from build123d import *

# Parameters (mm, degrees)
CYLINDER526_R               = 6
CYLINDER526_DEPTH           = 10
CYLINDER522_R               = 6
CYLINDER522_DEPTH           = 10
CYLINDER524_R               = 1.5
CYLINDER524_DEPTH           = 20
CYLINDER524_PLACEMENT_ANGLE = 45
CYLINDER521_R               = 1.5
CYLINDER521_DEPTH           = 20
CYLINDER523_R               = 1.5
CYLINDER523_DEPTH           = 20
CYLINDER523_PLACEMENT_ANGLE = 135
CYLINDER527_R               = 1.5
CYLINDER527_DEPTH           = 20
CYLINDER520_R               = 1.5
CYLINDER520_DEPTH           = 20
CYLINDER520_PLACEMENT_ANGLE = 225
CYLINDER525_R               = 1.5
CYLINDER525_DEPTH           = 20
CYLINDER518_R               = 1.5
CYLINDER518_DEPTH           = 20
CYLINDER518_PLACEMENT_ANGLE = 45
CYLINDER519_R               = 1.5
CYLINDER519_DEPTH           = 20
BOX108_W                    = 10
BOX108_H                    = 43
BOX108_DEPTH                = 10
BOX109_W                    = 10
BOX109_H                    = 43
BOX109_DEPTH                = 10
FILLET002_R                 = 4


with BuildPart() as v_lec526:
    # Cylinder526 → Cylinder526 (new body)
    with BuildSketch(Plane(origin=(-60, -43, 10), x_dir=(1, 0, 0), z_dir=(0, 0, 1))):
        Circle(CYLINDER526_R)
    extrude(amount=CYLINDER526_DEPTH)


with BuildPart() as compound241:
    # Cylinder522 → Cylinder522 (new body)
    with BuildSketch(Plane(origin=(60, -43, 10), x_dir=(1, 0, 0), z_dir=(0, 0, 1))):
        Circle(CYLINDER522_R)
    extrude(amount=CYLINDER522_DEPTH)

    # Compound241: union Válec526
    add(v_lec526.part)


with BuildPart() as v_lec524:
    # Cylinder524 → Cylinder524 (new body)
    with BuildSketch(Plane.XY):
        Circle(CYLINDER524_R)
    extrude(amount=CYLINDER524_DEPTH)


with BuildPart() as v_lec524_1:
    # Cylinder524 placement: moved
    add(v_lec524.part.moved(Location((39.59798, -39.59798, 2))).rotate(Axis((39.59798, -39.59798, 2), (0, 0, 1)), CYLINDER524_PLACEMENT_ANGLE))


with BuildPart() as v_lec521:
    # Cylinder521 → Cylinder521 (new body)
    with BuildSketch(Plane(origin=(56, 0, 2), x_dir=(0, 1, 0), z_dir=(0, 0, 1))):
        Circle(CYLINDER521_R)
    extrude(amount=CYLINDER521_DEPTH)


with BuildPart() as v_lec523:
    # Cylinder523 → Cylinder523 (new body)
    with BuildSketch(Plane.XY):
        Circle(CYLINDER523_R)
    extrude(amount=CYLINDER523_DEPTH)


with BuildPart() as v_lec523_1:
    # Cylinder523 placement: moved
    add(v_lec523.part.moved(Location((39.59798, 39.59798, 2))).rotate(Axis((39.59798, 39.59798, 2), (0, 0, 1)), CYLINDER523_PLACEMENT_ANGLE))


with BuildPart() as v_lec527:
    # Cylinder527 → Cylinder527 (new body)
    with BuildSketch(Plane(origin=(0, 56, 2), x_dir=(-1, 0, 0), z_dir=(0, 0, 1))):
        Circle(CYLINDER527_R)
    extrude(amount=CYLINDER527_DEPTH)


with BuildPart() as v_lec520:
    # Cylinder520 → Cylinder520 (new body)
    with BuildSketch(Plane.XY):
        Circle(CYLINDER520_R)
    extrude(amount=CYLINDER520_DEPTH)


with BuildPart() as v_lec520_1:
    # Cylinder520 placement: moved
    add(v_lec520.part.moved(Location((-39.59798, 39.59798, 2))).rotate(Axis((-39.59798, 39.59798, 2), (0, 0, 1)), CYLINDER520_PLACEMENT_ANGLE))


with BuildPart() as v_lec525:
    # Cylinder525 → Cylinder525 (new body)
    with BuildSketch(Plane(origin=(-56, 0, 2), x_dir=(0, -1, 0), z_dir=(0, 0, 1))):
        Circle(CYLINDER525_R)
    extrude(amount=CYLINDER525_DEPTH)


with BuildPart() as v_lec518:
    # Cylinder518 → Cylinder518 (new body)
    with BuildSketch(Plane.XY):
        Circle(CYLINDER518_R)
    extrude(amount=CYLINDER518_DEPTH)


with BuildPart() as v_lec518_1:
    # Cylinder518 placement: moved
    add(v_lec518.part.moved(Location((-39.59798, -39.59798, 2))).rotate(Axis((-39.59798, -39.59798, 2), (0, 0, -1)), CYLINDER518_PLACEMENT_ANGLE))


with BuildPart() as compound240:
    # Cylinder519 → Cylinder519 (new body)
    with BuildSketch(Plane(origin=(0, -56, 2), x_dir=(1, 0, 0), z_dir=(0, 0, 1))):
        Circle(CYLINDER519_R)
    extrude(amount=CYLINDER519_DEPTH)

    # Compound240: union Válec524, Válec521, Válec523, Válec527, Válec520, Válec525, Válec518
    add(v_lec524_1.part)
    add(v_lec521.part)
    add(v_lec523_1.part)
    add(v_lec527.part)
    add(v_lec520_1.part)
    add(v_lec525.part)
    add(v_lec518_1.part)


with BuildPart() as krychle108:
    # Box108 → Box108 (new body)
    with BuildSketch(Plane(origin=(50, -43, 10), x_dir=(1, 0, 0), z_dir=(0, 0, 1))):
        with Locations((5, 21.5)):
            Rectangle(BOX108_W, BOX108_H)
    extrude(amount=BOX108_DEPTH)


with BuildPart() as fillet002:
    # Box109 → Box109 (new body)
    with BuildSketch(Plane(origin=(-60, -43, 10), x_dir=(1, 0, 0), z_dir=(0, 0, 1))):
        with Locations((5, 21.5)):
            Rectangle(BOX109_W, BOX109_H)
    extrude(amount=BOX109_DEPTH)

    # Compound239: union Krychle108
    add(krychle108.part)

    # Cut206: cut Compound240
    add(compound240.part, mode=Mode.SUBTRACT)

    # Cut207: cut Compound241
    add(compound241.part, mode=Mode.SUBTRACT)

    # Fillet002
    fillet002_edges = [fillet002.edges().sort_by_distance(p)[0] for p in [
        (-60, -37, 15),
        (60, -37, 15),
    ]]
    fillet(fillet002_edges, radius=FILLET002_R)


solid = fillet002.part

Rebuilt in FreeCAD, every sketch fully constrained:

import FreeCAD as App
import Part
import Sketcher
Q = App.Units.Quantity


def edges_at(feature, points):
    """Names of the edges that pass closest to the given points."""
    edges = feature.Shape.Edges
    near = lambda p: min(range(len(edges)), key=lambda i: edges[i].distToShape(Part.Vertex(*p))[0])
    return sorted({f"Edge{near(p) + 1}" for p in points})


def add_polygon(sketch, points):
    """Adds a closed chain of lines whose ends are joined by coincident constraints."""
    first, n = sketch.GeometryCount, len(points)
    for a, b in zip(points, points[1:] + points[:1]):
        sketch.addGeometry(Part.LineSegment(App.Vector(*a, 0), App.Vector(*b, 0)), False)
    for i in range(n):
        sketch.addConstraint(Sketcher.Constraint("Coincident", first + i, 2, first + (i + 1) % n, 1))

doc = App.newDocument("Part")
body = doc.addObject("PartDesign::Body", "Body")

# Sketch on XY plane
sketch1 = body.newObject("Sketcher::SketchObject", "Sketch")
sketch1.AttachmentSupport = (doc.getObject("XY_Plane"), [""])
sketch1.MapMode = "FlatFace"
sketch1.AttachmentOffset = App.Placement(App.Vector(0, 0, 10), App.Rotation())
sketch1.addGeometry(Part.Circle(App.Vector(-60, -43, 0), App.Vector(0, 0, 1), 6), False)
sketch1.addConstraint(Sketcher.Constraint("Diameter", 0, Q("12 mm")))
sketch1.addConstraint(Sketcher.Constraint("DistanceX", 0, 3, -1, 1, Q("60 mm")))
sketch1.addConstraint(Sketcher.Constraint("DistanceY", 0, 3, -1, 1, Q("43 mm")))
pad1 = body.newObject("PartDesign::Pad", "Pad")
pad1.Profile = sketch1
pad1.Length = 10
body2 = doc.addObject("PartDesign::Body", "Body001")
body2.AllowCompound = True

# Sketch on XY plane
sketch2 = body2.newObject("Sketcher::SketchObject", "Sketch001")
sketch2.AttachmentSupport = (doc.getObject("XY_Plane001"), [""])
sketch2.MapMode = "FlatFace"
sketch2.AttachmentOffset = App.Placement(App.Vector(0, 0, 10), App.Rotation())
sketch2.addGeometry(Part.Circle(App.Vector(60, -43, 0), App.Vector(0, 0, 1), 6), False)
sketch2.addConstraint(Sketcher.Constraint("Diameter", 0, Q("12 mm")))
sketch2.addConstraint(Sketcher.Constraint("DistanceX", -1, 1, 0, 3, Q("60 mm")))
sketch2.addConstraint(Sketcher.Constraint("DistanceY", 0, 3, -1, 1, Q("43 mm")))
pad2 = body2.newObject("PartDesign::Pad", "Pad001")
pad2.Profile = sketch2
pad2.Length = 10
doc.recompute()

boolean = body2.newObject("PartDesign::Boolean", "Boolean")
boolean.Type = "Fuse"
boolean.addObjects([body])
body3 = doc.addObject("PartDesign::Body", "Body002")

# Sketch on XY plane
sketch3 = body3.newObject("Sketcher::SketchObject", "Sketch002")
sketch3.AttachmentSupport = (doc.getObject("XY_Plane002"), [""])
sketch3.MapMode = "FlatFace"
sketch3.addGeometry(Part.Circle(App.Vector(0, 0, 0), App.Vector(0, 0, 1), 1.5), False)
sketch3.addConstraint(Sketcher.Constraint("Coincident", 0, 3, -1, 1))
sketch3.addConstraint(Sketcher.Constraint("Diameter", 0, Q("3 mm")))
pad3 = body3.newObject("PartDesign::Pad", "Pad002")
pad3.Profile = sketch3
pad3.Length = 20
body4 = doc.addObject("PartDesign::Body", "Body003")
doc.recompute()

body3.Placement = App.Placement(App.Vector(39.59798, -39.59798, 2), App.Rotation(App.Vector(0, 0, 1), 45))
boolean2 = body4.newObject("PartDesign::Boolean", "Boolean001")
boolean2.Type = "Fuse"
boolean2.addObjects([body3])
body5 = doc.addObject("PartDesign::Body", "Body004")

# Sketch on XY plane
sketch4 = body5.newObject("Sketcher::SketchObject", "Sketch003")
sketch4.AttachmentSupport = (doc.getObject("XY_Plane004"), [""])
sketch4.MapMode = "FlatFace"
sketch4.AttachmentOffset = App.Placement(App.Vector(0, 0, 2), App.Rotation())
sketch4.addGeometry(Part.Circle(App.Vector(56, 0, 0), App.Vector(0, 0, 1), 1.5), False)
sketch4.addConstraint(Sketcher.Constraint("PointOnObject", 0, 3, -1))
sketch4.addConstraint(Sketcher.Constraint("Diameter", 0, Q("3 mm")))
sketch4.addConstraint(Sketcher.Constraint("DistanceX", -1, 1, 0, 3, Q("56 mm")))
pad4 = body5.newObject("PartDesign::Pad", "Pad003")
pad4.Profile = sketch4
pad4.Length = 20
body6 = doc.addObject("PartDesign::Body", "Body005")

# Sketch on XY plane
sketch5 = body6.newObject("Sketcher::SketchObject", "Sketch004")
sketch5.AttachmentSupport = (doc.getObject("XY_Plane005"), [""])
sketch5.MapMode = "FlatFace"
sketch5.addGeometry(Part.Circle(App.Vector(0, 0, 0), App.Vector(0, 0, 1), 1.5), False)
sketch5.addConstraint(Sketcher.Constraint("Coincident", 0, 3, -1, 1))
sketch5.addConstraint(Sketcher.Constraint("Diameter", 0, Q("3 mm")))
pad5 = body6.newObject("PartDesign::Pad", "Pad004")
pad5.Profile = sketch5
pad5.Length = 20
body7 = doc.addObject("PartDesign::Body", "Body006")
doc.recompute()

body6.Placement = App.Placement(App.Vector(39.59798, 39.59798, 2), App.Rotation(App.Vector(0, 0, 1), 135))
boolean3 = body7.newObject("PartDesign::Boolean", "Boolean002")
boolean3.Type = "Fuse"
boolean3.addObjects([body6])
body8 = doc.addObject("PartDesign::Body", "Body007")

# Sketch on XY plane
sketch6 = body8.newObject("Sketcher::SketchObject", "Sketch005")
sketch6.AttachmentSupport = (doc.getObject("XY_Plane007"), [""])
sketch6.MapMode = "FlatFace"
sketch6.AttachmentOffset = App.Placement(App.Vector(0, 0, 2), App.Rotation())
sketch6.addGeometry(Part.Circle(App.Vector(0, 56, 0), App.Vector(0, 0, 1), 1.5), False)
sketch6.addConstraint(Sketcher.Constraint("PointOnObject", 0, 3, -2))
sketch6.addConstraint(Sketcher.Constraint("Diameter", 0, Q("3 mm")))
sketch6.addConstraint(Sketcher.Constraint("DistanceY", -1, 1, 0, 3, Q("56 mm")))
pad6 = body8.newObject("PartDesign::Pad", "Pad005")
pad6.Profile = sketch6
pad6.Length = 20
body9 = doc.addObject("PartDesign::Body", "Body008")

# Sketch on XY plane
sketch7 = body9.newObject("Sketcher::SketchObject", "Sketch006")
sketch7.AttachmentSupport = (doc.getObject("XY_Plane008"), [""])
sketch7.MapMode = "FlatFace"
sketch7.addGeometry(Part.Circle(App.Vector(0, 0, 0), App.Vector(0, 0, 1), 1.5), False)
sketch7.addConstraint(Sketcher.Constraint("Coincident", 0, 3, -1, 1))
sketch7.addConstraint(Sketcher.Constraint("Diameter", 0, Q("3 mm")))
pad7 = body9.newObject("PartDesign::Pad", "Pad006")
pad7.Profile = sketch7
pad7.Length = 20
body10 = doc.addObject("PartDesign::Body", "Body009")
doc.recompute()

body9.Placement = App.Placement(App.Vector(-39.59798, 39.59798, 2), App.Rotation(App.Vector(0, 0, 1), 225))
boolean4 = body10.newObject("PartDesign::Boolean", "Boolean003")
boolean4.Type = "Fuse"
boolean4.addObjects([body9])
body11 = doc.addObject("PartDesign::Body", "Body010")

# Sketch on XY plane
sketch8 = body11.newObject("Sketcher::SketchObject", "Sketch007")
sketch8.AttachmentSupport = (doc.getObject("XY_Plane010"), [""])
sketch8.MapMode = "FlatFace"
sketch8.AttachmentOffset = App.Placement(App.Vector(0, 0, 2), App.Rotation())
sketch8.addGeometry(Part.Circle(App.Vector(-56, 0, 0), App.Vector(0, 0, 1), 1.5), False)
sketch8.addConstraint(Sketcher.Constraint("PointOnObject", 0, 3, -1))
sketch8.addConstraint(Sketcher.Constraint("Diameter", 0, Q("3 mm")))
sketch8.addConstraint(Sketcher.Constraint("DistanceX", 0, 3, -1, 1, Q("56 mm")))
pad8 = body11.newObject("PartDesign::Pad", "Pad007")
pad8.Profile = sketch8
pad8.Length = 20
body12 = doc.addObject("PartDesign::Body", "Body011")

# Sketch on XY plane
sketch9 = body12.newObject("Sketcher::SketchObject", "Sketch008")
sketch9.AttachmentSupport = (doc.getObject("XY_Plane011"), [""])
sketch9.MapMode = "FlatFace"
sketch9.addGeometry(Part.Circle(App.Vector(0, 0, 0), App.Vector(0, 0, 1), 1.5), False)
sketch9.addConstraint(Sketcher.Constraint("Coincident", 0, 3, -1, 1))
sketch9.addConstraint(Sketcher.Constraint("Diameter", 0, Q("3 mm")))
pad9 = body12.newObject("PartDesign::Pad", "Pad008")
pad9.Profile = sketch9
pad9.Length = 20
body13 = doc.addObject("PartDesign::Body", "Body012")
doc.recompute()

body12.Placement = App.Placement(App.Vector(-39.59798, -39.59798, 2), App.Rotation(App.Vector(0, 0, -1), 45))
boolean5 = body13.newObject("PartDesign::Boolean", "Boolean004")
boolean5.Type = "Fuse"
boolean5.addObjects([body12])
body14 = doc.addObject("PartDesign::Body", "Body013")
body14.AllowCompound = True

# Sketch on XY plane
sketch10 = body14.newObject("Sketcher::SketchObject", "Sketch009")
sketch10.AttachmentSupport = (doc.getObject("XY_Plane013"), [""])
sketch10.MapMode = "FlatFace"
sketch10.AttachmentOffset = App.Placement(App.Vector(0, 0, 2), App.Rotation())
sketch10.addGeometry(Part.Circle(App.Vector(0, -56, 0), App.Vector(0, 0, 1), 1.5), False)
sketch10.addConstraint(Sketcher.Constraint("PointOnObject", 0, 3, -2))
sketch10.addConstraint(Sketcher.Constraint("Diameter", 0, Q("3 mm")))
sketch10.addConstraint(Sketcher.Constraint("DistanceY", 0, 3, -1, 1, Q("56 mm")))
pad10 = body14.newObject("PartDesign::Pad", "Pad009")
pad10.Profile = sketch10
pad10.Length = 20
doc.recompute()

boolean6 = body14.newObject("PartDesign::Boolean", "Boolean005")
boolean6.Type = "Fuse"
boolean6.addObjects([body4])
doc.recompute()

boolean7 = body14.newObject("PartDesign::Boolean", "Boolean006")
boolean7.Type = "Fuse"
boolean7.addObjects([body5])
doc.recompute()

boolean8 = body14.newObject("PartDesign::Boolean", "Boolean007")
boolean8.Type = "Fuse"
boolean8.addObjects([body7])
doc.recompute()

boolean9 = body14.newObject("PartDesign::Boolean", "Boolean008")
boolean9.Type = "Fuse"
boolean9.addObjects([body8])
doc.recompute()

boolean10 = body14.newObject("PartDesign::Boolean", "Boolean009")
boolean10.Type = "Fuse"
boolean10.addObjects([body10])
doc.recompute()

boolean11 = body14.newObject("PartDesign::Boolean", "Boolean010")
boolean11.Type = "Fuse"
boolean11.addObjects([body11])
doc.recompute()

boolean12 = body14.newObject("PartDesign::Boolean", "Boolean011")
boolean12.Type = "Fuse"
boolean12.addObjects([body13])
body15 = doc.addObject("PartDesign::Body", "Body014")

# Sketch on XY plane
sketch11 = body15.newObject("Sketcher::SketchObject", "Sketch010")
sketch11.AttachmentSupport = (doc.getObject("XY_Plane014"), [""])
sketch11.MapMode = "FlatFace"
sketch11.AttachmentOffset = App.Placement(App.Vector(0, 0, 10), App.Rotation())
add_polygon(sketch11, [(50, 0), (50, -43), (60, -43), (60, 0)])  # lines 0-3
sketch11.addConstraint(Sketcher.Constraint("Vertical", 0))
sketch11.addConstraint(Sketcher.Constraint("Horizontal", 1))
sketch11.addConstraint(Sketcher.Constraint("Vertical", 2))
sketch11.addConstraint(Sketcher.Constraint("Horizontal", 3))
sketch11.addConstraint(Sketcher.Constraint("PointOnObject", 2, 2, -1))
sketch11.addConstraint(Sketcher.Constraint("DistanceX", 1, 1, 1, 2, Q("10 mm")))
sketch11.addConstraint(Sketcher.Constraint("DistanceY", 0, 2, 0, 1, Q("43 mm")))
sketch11.addConstraint(Sketcher.Constraint("DistanceX", -1, 1, 0, 2, Q("50 mm")))
pad11 = body15.newObject("PartDesign::Pad", "Pad010")
pad11.Profile = sketch11
pad11.Length = 10
body16 = doc.addObject("PartDesign::Body", "Body015")
body16.AllowCompound = True

# Sketch on XY plane
sketch12 = body16.newObject("Sketcher::SketchObject", "Sketch011")
sketch12.AttachmentSupport = (doc.getObject("XY_Plane015"), [""])
sketch12.MapMode = "FlatFace"
sketch12.AttachmentOffset = App.Placement(App.Vector(0, 0, 10), App.Rotation())
add_polygon(sketch12, [(-60, 0), (-60, -43), (-50, -43), (-50, 0)])  # lines 0-3
sketch12.addConstraint(Sketcher.Constraint("Vertical", 0))
sketch12.addConstraint(Sketcher.Constraint("Horizontal", 1))
sketch12.addConstraint(Sketcher.Constraint("Vertical", 2))
sketch12.addConstraint(Sketcher.Constraint("Horizontal", 3))
sketch12.addConstraint(Sketcher.Constraint("PointOnObject", 2, 2, -1))
sketch12.addConstraint(Sketcher.Constraint("DistanceX", 1, 1, 1, 2, Q("10 mm")))
sketch12.addConstraint(Sketcher.Constraint("DistanceY", 0, 2, 0, 1, Q("43 mm")))
sketch12.addConstraint(Sketcher.Constraint("DistanceX", 0, 2, -1, 1, Q("60 mm")))
pad12 = body16.newObject("PartDesign::Pad", "Pad011")
pad12.Profile = sketch12
pad12.Length = 10
doc.recompute()

boolean13 = body16.newObject("PartDesign::Boolean", "Boolean012")
boolean13.Type = "Fuse"
boolean13.addObjects([body15])
doc.recompute()

boolean14 = body16.newObject("PartDesign::Boolean", "Boolean013")
boolean14.Type = "Cut"
boolean14.addObjects([body14])
doc.recompute()

boolean15 = body16.newObject("PartDesign::Boolean", "Boolean014")
boolean15.Type = "Cut"
boolean15.addObjects([body2])
doc.recompute()

fillet = body16.newObject("PartDesign::Fillet", "Fillet")
fillet.Base = (boolean15, edges_at(boolean15, [(-60, -37, 15), (60, -37, 15)]))
fillet.Radius = 4

doc.recompute()
